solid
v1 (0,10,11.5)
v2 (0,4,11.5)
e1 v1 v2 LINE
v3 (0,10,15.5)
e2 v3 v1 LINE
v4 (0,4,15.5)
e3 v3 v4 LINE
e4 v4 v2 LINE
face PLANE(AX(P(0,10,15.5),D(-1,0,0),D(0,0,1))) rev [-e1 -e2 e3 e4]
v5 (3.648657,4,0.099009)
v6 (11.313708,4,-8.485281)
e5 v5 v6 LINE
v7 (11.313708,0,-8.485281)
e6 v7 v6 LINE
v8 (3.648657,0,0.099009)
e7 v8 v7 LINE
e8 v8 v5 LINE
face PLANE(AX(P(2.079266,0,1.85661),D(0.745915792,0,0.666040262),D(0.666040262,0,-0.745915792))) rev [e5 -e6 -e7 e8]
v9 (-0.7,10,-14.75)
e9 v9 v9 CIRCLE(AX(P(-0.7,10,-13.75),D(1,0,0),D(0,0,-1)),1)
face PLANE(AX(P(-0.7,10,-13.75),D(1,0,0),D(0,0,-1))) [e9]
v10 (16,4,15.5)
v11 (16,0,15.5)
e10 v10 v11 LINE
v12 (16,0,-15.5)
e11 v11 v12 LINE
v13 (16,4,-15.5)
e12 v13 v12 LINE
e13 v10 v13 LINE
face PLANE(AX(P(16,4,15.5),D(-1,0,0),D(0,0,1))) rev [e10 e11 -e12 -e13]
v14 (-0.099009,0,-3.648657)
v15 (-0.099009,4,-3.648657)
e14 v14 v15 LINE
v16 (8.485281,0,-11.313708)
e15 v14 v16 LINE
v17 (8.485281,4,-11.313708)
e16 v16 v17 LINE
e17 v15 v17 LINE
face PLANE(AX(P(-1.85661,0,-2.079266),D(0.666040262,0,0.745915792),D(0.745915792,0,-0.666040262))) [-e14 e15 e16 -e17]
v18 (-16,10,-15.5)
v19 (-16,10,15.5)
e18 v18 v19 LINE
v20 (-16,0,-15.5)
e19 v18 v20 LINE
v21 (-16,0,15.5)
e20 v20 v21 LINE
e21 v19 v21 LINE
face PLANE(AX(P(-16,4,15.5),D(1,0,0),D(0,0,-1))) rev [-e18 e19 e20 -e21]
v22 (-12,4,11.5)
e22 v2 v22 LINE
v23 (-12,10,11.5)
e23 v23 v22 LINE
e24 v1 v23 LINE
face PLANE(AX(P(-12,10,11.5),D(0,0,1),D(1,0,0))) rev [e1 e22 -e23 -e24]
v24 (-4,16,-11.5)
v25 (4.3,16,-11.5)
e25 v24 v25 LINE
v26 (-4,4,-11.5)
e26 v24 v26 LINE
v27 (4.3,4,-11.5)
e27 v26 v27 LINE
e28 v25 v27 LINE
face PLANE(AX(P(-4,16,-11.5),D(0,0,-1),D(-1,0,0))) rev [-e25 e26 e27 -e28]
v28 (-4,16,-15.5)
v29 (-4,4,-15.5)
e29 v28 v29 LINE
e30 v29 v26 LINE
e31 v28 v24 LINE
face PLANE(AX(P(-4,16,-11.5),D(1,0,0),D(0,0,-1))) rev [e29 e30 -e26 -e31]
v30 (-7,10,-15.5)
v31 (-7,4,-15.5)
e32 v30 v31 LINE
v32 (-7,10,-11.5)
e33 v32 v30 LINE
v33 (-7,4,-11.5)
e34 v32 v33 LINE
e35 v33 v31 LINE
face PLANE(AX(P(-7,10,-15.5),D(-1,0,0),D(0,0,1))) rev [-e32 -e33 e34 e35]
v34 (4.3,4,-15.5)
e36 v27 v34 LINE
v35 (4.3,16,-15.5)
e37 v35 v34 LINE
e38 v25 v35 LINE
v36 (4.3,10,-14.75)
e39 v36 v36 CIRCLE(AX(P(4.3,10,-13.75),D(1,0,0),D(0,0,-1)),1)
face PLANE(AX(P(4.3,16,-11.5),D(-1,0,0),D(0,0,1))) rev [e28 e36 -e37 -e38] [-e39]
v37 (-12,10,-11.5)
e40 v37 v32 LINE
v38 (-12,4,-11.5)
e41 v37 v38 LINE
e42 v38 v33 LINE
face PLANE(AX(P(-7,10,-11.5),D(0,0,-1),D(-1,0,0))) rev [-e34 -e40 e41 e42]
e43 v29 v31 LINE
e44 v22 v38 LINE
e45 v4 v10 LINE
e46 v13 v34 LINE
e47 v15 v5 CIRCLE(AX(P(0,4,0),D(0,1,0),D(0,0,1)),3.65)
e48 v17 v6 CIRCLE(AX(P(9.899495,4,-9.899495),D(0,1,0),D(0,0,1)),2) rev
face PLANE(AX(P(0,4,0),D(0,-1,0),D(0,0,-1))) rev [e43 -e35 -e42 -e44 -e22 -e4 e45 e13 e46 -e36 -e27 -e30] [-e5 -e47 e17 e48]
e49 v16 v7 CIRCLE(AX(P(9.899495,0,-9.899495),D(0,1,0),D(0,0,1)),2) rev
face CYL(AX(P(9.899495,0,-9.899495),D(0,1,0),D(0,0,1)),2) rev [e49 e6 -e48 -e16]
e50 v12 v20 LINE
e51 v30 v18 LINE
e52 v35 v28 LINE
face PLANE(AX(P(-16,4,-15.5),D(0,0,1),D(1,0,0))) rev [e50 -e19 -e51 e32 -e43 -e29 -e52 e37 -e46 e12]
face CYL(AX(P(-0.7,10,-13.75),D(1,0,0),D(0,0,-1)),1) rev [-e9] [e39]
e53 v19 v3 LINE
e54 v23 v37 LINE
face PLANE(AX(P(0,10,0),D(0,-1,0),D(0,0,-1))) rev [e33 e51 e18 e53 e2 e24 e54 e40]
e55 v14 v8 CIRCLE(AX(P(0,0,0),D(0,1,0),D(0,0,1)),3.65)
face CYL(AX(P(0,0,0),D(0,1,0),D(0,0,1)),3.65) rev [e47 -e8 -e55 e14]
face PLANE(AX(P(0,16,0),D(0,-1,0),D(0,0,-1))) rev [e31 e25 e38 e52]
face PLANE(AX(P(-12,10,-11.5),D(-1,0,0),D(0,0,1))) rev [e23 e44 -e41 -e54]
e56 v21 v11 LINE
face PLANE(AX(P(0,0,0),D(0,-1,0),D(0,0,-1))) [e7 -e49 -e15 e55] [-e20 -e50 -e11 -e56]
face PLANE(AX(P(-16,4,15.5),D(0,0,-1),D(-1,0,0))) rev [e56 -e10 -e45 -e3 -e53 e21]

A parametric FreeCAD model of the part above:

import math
import FreeCAD as App
import Part
import Sketcher

V = App.Vector


def add_polygon(sketch, points):
    """Adds a closed chain of lines whose ends are joined by coincident constraints."""
    first, n = sketch.GeometryCount, len(points)
    for a, b in zip(points, points[1:] + points[:1]):
        sketch.addGeometry(Part.LineSegment(App.Vector(*a, 0), App.Vector(*b, 0)), False)
    for i in range(n):
        sketch.addConstraint(Sketcher.Constraint("Coincident", first + i, 2, first + (i + 1) % n, 1))

doc = App.newDocument("Part")
body = doc.addObject("PartDesign::Body", "Body")

sketch1 = doc.addObject("Sketcher::SketchObject", "Sketch")
body.addObject(sketch1)
sketch1.AttachmentSupport = (doc.XZ_Plane, [""])
sketch1.MapMode = "FlatFace"
add_polygon(sketch1, [(-16, -16), (-16, 16), (16, 16), (16, -16)])
sketch1.addConstraint(Sketcher.Constraint("Vertical", 0))
sketch1.addConstraint(Sketcher.Constraint("Horizontal", 1))
sketch1.addConstraint(Sketcher.Constraint("Vertical", 2))
sketch1.addConstraint(Sketcher.Constraint("Horizontal", 3))
sketch1.addConstraint(Sketcher.Constraint("Symmetric", 0, 2, 2, 2, -1, 1))
sketch1.addConstraint(Sketcher.Constraint("DistanceX", 1, 1, 1, 2, 32.0))
sketch1.addConstraint(Sketcher.Constraint("DistanceY", 0, 1, 0, 2, 31.0))
pad1 = doc.addObject("PartDesign::Pad", "Pad")
body.addObject(pad1)
pad1.Profile = sketch1
pad1.Length = 4
pad1.Reversed = True

sketch2 = doc.addObject("Sketcher::SketchObject", "Sketch001")
body.addObject(sketch2)
sketch2.AttachmentSupport = (doc.XZ_Plane, [""])
sketch2.MapMode = "FlatFace"
sketch2.AttachmentOffset = App.Placement(V(0, 0, -4), App.Rotation())
add_polygon(sketch2, [(-16, -15.5), (-16, 15.5), (0, 15.5), (0, 11.5), (-12, 11.5), (-12, -11.5), (-7, -11.5), (-7, -15.5)])
sketch2.addConstraint(Sketcher.Constraint("Vertical", 0))
sketch2.addConstraint(Sketcher.Constraint("Horizontal", 1))
sketch2.addConstraint(Sketcher.Constraint("Vertical", 2))
sketch2.addConstraint(Sketcher.Constraint("Horizontal", 3))
sketch2.addConstraint(Sketcher.Constraint("Vertical", 4))
sketch2.addConstraint(Sketcher.Constraint("Horizontal", 5))
sketch2.addConstraint(Sketcher.Constraint("Vertical", 6))
sketch2.addConstraint(Sketcher.Constraint("Horizontal", 7))
sketch2.addConstraint(Sketcher.Constraint("PointOnObject", 1, 2, -2))
sketch2.addConstraint(Sketcher.Constraint("Equal", 2, 6))
sketch2.addConstraint(Sketcher.Constraint("DistanceX", 1, 1, 1, 2, 16.0))
sketch2.addConstraint(Sketcher.Constraint("DistanceX", 3, 2, 3, 1, 12.0))
sketch2.addConstraint(Sketcher.Constraint("DistanceX", 5, 1, 5, 2, 5.0))
sketch2.addConstraint(Sketcher.Constraint("DistanceY", 0, 1, 0, 2, 31.0))
sketch2.addConstraint(Sketcher.Constraint("DistanceY", 2, 2, 2, 1, 4.0))
sketch2.addConstraint(Sketcher.Constraint("DistanceY", -1, 1, 0, 2, 15.5))
pad2 = doc.addObject("PartDesign::Pad", "Pad001")
body.addObject(pad2)
pad2.Profile = sketch2
pad2.Length = 6
pad2.Reversed = True

sketch3 = doc.addObject("Sketcher::SketchObject", "Sketch002")
body.addObject(sketch3)
sketch3.AttachmentSupport = (doc.XZ_Plane, [""])
sketch3.MapMode = "FlatFace"
sketch3.AttachmentOffset = App.Placement(V(0, 0, -4), App.Rotation())
add_polygon(sketch3, [(-4, -15.5), (-4, -11.5), (4.3, -11.5), (4.3, -15.5)])
sketch3.addConstraint(Sketcher.Constraint("Vertical", 0))
sketch3.addConstraint(Sketcher.Constraint("Horizontal", 1))
sketch3.addConstraint(Sketcher.Constraint("Vertical", 2))
sketch3.addConstraint(Sketcher.Constraint("Horizontal", 3))
sketch3.addConstraint(Sketcher.Constraint("DistanceY", 0, 1, 0, 2, 4.0))
sketch3.addConstraint(Sketcher.Constraint("DistanceX", 1, 1, 1, 2, 8.3))
sketch3.addConstraint(Sketcher.Constraint("DistanceX", 0, 2, -1, 1, 4.0))
sketch3.addConstraint(Sketcher.Constraint("DistanceY", 0, 2, -1, 1, 11.5))
pad3 = doc.addObject("PartDesign::Pad", "Pad002")
body.addObject(pad3)
pad3.Profile = sketch3
pad3.Length = 12
pad3.Reversed = True

sketch4 = doc.addObject("Sketcher::SketchObject", "Sketch003")
body.addObject(sketch4)
sketch4.AttachmentSupport = (doc.YZ_Plane, [""])
sketch4.MapMode = "FlatFace"
sketch4.AttachmentOffset = App.Placement(V(0, 0, 4.3), App.Rotation())
sketch4.addGeometry(Part.Circle(V(10, -13.8, 0), V(0, 0, 1), 1), False)
sketch4.addConstraint(Sketcher.Constraint("Diameter", 0, 2.0))
sketch4.addConstraint(Sketcher.Constraint("DistanceX", -1, 1, 0, 3, 10.0))
sketch4.addConstraint(Sketcher.Constraint("DistanceY", 0, 3, -1, 1, 13.75))
pocket1 = doc.addObject("PartDesign::Pocket", "Pocket")
body.addObject(pocket1)
pocket1.Profile = sketch4
pocket1.Length = 5

sketch5 = doc.addObject("Sketcher::SketchObject", "Sketch004")
body.addObject(sketch5)
sketch5.AttachmentSupport = (doc.XZ_Plane, [""])
sketch5.MapMode = "FlatFace"
sketch5.AttachmentOffset = App.Placement(V(0, 0, -4), App.Rotation())
sketch5.addGeometry(Part.LineSegment(V(8.5, -11.3, 0), V(-0.1, -3.6, 0)), False)
sketch5.addGeometry(Part.ArcOfCircle(Part.Circle(V(0, 0, 0), V(0, 0, 1), 3.6), math.radians(2), math.radians(268)), False)
sketch5.addGeometry(Part.LineSegment(V(3.6, 0.1, 0), V(11.3, -8.5, 0)), False)
sketch5.addGeometry(Part.ArcOfCircle(Part.Circle(V(9.9, -9.9, 0), V(0, 0, 1), 2), math.radians(-45), math.radians(45)), False)
sketch5.addGeometry(Part.ArcOfCircle(Part.Circle(V(9.9, -9.9, 0), V(0, 0, 1), 2), math.radians(-135), math.radians(-45)), False)
sketch5.addConstraint(Sketcher.Constraint("Coincident", 0, 2, 1, 2))
sketch5.addConstraint(Sketcher.Constraint("Coincident", 1, 1, 2, 1))
sketch5.addConstraint(Sketcher.Constraint("Coincident", 2, 2, 3, 2))
sketch5.addConstraint(Sketcher.Constraint("Tangent", 3, 1, 4, 2))
sketch5.addConstraint(Sketcher.Constraint("Coincident", 4, 1, 0, 1))
sketch5.addConstraint(Sketcher.Constraint("Coincident", 1, 3, -1, 1))
sketch5.addConstraint(Sketcher.Constraint("Equal", 3, 4))
sketch5.addConstraint(Sketcher.Constraint("Horizontal", 3, 1, 4, 1))
sketch5.addConstraint(Sketcher.Constraint("Vertical", 2, 2, 3, 1))
sketch5.addConstraint(Sketcher.Constraint("Equal", 0, 2))
sketch5.addConstraint(Sketcher.Constraint("Radius", 3, 2.0))
sketch5.addConstraint(Sketcher.Constraint("Radius", 1, 3.65))
sketch5.addConstraint(Sketcher.Constraint("Distance", 0, 11.508391))
sketch5.addConstraint(Sketcher.Constraint("DistanceX", 0, 2, -1, 1, 0.099009))
sketch5.addConstraint(Sketcher.Constraint("DistanceY", -1, 1, 1, 1, 0.099009))
sketch5.addConstraint(Sketcher.Constraint("DistanceX", -1, 1, 2, 2, 11.313708))
pocket2 = doc.addObject("PartDesign::Pocket", "Pocket001")
body.addObject(pocket2)
pocket2.Profile = sketch5
pocket2.Length = 4
pocket2.Reversed = True

doc.recompute()
